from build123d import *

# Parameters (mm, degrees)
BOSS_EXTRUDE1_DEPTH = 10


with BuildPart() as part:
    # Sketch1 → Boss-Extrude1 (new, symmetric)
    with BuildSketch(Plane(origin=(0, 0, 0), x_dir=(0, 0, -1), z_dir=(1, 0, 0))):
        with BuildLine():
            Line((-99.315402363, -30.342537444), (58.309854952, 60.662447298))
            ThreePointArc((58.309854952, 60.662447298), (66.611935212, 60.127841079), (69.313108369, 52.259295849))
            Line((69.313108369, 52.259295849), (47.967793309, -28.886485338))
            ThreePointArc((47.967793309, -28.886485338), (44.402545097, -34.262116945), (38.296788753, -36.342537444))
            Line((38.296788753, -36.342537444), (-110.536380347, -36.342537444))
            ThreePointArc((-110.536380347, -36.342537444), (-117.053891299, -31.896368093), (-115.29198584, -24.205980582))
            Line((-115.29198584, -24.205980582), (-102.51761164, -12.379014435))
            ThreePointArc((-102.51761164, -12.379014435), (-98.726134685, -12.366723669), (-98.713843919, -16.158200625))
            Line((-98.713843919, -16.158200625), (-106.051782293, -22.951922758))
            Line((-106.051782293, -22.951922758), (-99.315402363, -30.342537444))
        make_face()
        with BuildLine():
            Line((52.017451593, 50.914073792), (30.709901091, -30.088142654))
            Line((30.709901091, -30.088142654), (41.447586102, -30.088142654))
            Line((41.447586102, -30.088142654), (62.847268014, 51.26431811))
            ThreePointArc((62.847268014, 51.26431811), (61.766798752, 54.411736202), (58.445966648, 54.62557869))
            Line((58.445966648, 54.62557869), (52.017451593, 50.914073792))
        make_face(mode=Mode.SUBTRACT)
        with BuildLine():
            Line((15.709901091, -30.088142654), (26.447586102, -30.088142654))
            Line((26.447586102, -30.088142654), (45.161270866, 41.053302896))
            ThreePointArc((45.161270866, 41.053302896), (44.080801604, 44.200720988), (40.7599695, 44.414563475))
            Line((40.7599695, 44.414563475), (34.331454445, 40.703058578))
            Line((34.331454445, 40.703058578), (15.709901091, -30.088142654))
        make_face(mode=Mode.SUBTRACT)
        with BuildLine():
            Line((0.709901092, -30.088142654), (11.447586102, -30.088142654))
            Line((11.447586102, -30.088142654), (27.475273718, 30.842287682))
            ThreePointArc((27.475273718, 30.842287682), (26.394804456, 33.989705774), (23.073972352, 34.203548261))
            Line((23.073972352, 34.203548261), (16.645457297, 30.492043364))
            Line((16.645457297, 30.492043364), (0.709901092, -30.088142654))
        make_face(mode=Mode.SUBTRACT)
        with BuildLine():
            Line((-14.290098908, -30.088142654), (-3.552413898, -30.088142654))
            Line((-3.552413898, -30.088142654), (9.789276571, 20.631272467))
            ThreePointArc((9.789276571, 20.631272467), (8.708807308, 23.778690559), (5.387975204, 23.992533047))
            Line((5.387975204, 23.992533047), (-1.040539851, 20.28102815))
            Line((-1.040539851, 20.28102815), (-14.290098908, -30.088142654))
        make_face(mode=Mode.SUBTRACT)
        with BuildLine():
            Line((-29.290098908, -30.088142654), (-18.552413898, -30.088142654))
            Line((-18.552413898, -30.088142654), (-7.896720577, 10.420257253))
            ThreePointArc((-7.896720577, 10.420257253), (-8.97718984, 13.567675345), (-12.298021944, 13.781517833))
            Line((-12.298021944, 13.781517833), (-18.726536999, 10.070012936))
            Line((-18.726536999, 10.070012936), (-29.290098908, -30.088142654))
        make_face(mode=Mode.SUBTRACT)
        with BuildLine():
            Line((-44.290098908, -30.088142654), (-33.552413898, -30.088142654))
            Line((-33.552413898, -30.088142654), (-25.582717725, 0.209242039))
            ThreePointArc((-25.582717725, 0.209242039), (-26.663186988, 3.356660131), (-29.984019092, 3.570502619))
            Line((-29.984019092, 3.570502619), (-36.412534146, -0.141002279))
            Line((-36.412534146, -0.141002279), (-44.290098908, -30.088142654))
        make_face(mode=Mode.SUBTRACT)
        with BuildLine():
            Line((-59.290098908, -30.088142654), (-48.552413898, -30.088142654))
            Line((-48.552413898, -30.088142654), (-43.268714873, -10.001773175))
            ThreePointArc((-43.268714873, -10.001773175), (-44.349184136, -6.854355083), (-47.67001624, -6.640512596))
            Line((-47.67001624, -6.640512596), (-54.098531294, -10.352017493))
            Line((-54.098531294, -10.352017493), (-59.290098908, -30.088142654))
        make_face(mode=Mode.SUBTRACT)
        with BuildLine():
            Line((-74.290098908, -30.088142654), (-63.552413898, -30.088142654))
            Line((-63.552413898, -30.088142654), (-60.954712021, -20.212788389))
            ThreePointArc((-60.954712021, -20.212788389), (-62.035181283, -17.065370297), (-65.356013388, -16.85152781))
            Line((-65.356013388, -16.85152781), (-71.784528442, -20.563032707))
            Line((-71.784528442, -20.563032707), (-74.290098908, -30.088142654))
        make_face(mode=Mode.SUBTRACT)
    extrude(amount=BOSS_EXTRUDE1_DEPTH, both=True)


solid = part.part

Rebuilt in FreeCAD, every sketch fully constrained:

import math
import FreeCAD as App
import Part
import Sketcher

doc = App.newDocument("Part")
body = doc.addObject("PartDesign::Body", "Body")

# Sketch on YZ plane
sketch1 = body.newObject("Sketcher::SketchObject", "Sketch")
sketch1.AttachmentSupport = (doc.getObject("YZ_Plane"), [""])
sketch1.MapMode = "FlatFace"
sketch1.addGeometry(Part.LineSegment(App.Vector(60.662447, -58.309855, 0), App.Vector(-30.342537, 99.315402, 0)), False)
sketch1.addGeometry(Part.LineSegment(App.Vector(-30.342537, 99.315402, 0), App.Vector(-22.951923, 106.051782, 0)), False)
sketch1.addGeometry(Part.LineSegment(App.Vector(-22.951923, 106.051782, 0), App.Vector(-16.158201, 98.713844, 0)), False)
sketch1.addGeometry(Part.ArcOfCircle(Part.Circle(App.Vector(-14.268608, 100.615728, 0), App.Vector(0, 0, 1), 2.680993), math.radians(-134.814266), math.radians(45.185734)), False)
sketch1.addGeometry(Part.LineSegment(App.Vector(-12.379014, 102.517612, 0), App.Vector(-24.205981, 115.291986, 0)), False)
sketch1.addGeometry(Part.ArcOfCircle(Part.Circle(App.Vector(-29.342537, 110.53638, 0), App.Vector(0, 0, 1), 7), math.radians(42.794605), math.radians(180)), False)
sketch1.addGeometry(Part.LineSegment(App.Vector(-36.342537, 110.53638, 0), App.Vector(-36.342537, -38.296789, 0)), False)
sketch1.addGeometry(Part.ArcOfCircle(Part.Circle(App.Vector(-26.342537, -38.296789, 0), App.Vector(0, 0, 1), 10), math.radians(180), math.radians(255.262273)), False)
sketch1.addGeometry(Part.LineSegment(App.Vector(-28.886485, -47.967793, 0), App.Vector(52.259296, -69.313108, 0)), False)
sketch1.addGeometry(Part.ArcOfCircle(Part.Circle(App.Vector(54.167257, -62.059855, 0), App.Vector(0, 0, 1), 7.5), math.radians(-104.737727), math.radians(30)), False)
sketch1.addGeometry(Part.LineSegment(App.Vector(-30.088143, -15.709901, 0), App.Vector(40.703059, -34.331454, 0)), False)
sketch1.addGeometry(Part.LineSegment(App.Vector(40.703059, -34.331454, 0), App.Vector(44.414563, -40.759969, 0)), False)
sketch1.addGeometry(Part.ArcOfCircle(Part.Circle(App.Vector(41.816487, -42.25997, 0), App.Vector(0, 0, 1), 3), math.radians(-104.737727), math.radians(30)), False)
sketch1.addGeometry(Part.LineSegment(App.Vector(41.053303, -45.161271, 0), App.Vector(-30.088143, -26.447586, 0)), False)
sketch1.addGeometry(Part.LineSegment(App.Vector(-30.088143, -26.447586, 0), App.Vector(-30.088143, -15.709901, 0)), False)
sketch1.addGeometry(Part.LineSegment(App.Vector(-30.088143, 14.290099, 0), App.Vector(20.281028, 1.04054, 0)), False)
sketch1.addGeometry(Part.LineSegment(App.Vector(20.281028, 1.04054, 0), App.Vector(23.992533, -5.387975, 0)), False)
sketch1.addGeometry(Part.ArcOfCircle(Part.Circle(App.Vector(21.394457, -6.887975, 0), App.Vector(0, 0, 1), 3), math.radians(-104.737727), math.radians(30)), False)
sketch1.addGeometry(Part.LineSegment(App.Vector(20.631272, -9.789277, 0), App.Vector(-30.088143, 3.552414, 0)), False)
sketch1.addGeometry(Part.LineSegment(App.Vector(-30.088143, 3.552414, 0), App.Vector(-30.088143, 14.290099, 0)), False)
sketch1.addGeometry(Part.LineSegment(App.Vector(-30.088143, -0.709901, 0), App.Vector(30.492043, -16.645457, 0)), False)
sketch1.addGeometry(Part.LineSegment(App.Vector(30.492043, -16.645457, 0), App.Vector(34.203548, -23.073972, 0)), False)
sketch1.addGeometry(Part.ArcOfCircle(Part.Circle(App.Vector(31.605472, -24.573972, 0), App.Vector(0, 0, 1), 3), math.radians(-104.737727), math.radians(30)), False)
sketch1.addGeometry(Part.LineSegment(App.Vector(30.842288, -27.475274, 0), App.Vector(-30.088143, -11.447586, 0)), False)
sketch1.addGeometry(Part.LineSegment(App.Vector(-30.088143, -11.447586, 0), App.Vector(-30.088143, -0.709901, 0)), False)
sketch1.addGeometry(Part.LineSegment(App.Vector(-30.088143, 44.290099, 0), App.Vector(-0.141002, 36.412534, 0)), False)
sketch1.addGeometry(Part.LineSegment(App.Vector(-0.141002, 36.412534, 0), App.Vector(3.570503, 29.984019, 0)), False)
sketch1.addGeometry(Part.ArcOfCircle(Part.Circle(App.Vector(0.972426, 28.484019, 0), App.Vector(0, 0, 1), 3), math.radians(-104.737727), math.radians(30)), False)
sketch1.addGeometry(Part.LineSegment(App.Vector(0.209242, 25.582718, 0), App.Vector(-30.088143, 33.552414, 0)), False)
sketch1.addGeometry(Part.LineSegment(App.Vector(-30.088143, 33.552414, 0), App.Vector(-30.088143, 44.290099, 0)), False)
sketch1.addGeometry(Part.LineSegment(App.Vector(-30.088143, 74.290099, 0), App.Vector(-20.563033, 71.784528, 0)), False)
sketch1.addGeometry(Part.LineSegment(App.Vector(-20.563033, 71.784528, 0), App.Vector(-16.851528, 65.356013, 0)), False)
sketch1.addGeometry(Part.ArcOfCircle(Part.Circle(App.Vector(-19.449604, 63.856013, 0), App.Vector(0, 0, 1), 3), math.radians(-104.737727), math.radians(30)), False)
sketch1.addGeometry(Part.LineSegment(App.Vector(-20.212788, 60.954712, 0), App.Vector(-30.088143, 63.552414, 0)), False)
sketch1.addGeometry(Part.LineSegment(App.Vector(-30.088143, 63.552414, 0), App.Vector(-30.088143, 74.290099, 0)), False)
sketch1.addGeometry(Part.LineSegment(App.Vector(-30.088143, 59.290099, 0), App.Vector(-10.352017, 54.098531, 0)), False)
sketch1.addGeometry(Part.LineSegment(App.Vector(-10.352017, 54.098531, 0), App.Vector(-6.640513, 47.670016, 0)), False)
sketch1.addGeometry(Part.ArcOfCircle(Part.Circle(App.Vector(-9.238589, 46.170016, 0), App.Vector(0, 0, 1), 3), math.radians(-104.737727), math.radians(30)), False)
sketch1.addGeometry(Part.LineSegment(App.Vector(-10.001773, 43.268715, 0), App.Vector(-30.088143, 48.552414, 0)), False)
sketch1.addGeometry(Part.LineSegment(App.Vector(-30.088143, 48.552414, 0), App.Vector(-30.088143, 59.290099, 0)), False)
sketch1.addGeometry(Part.LineSegment(App.Vector(-30.088143, 29.290099, 0), App.Vector(10.070013, 18.726537, 0)), False)
sketch1.addGeometry(Part.LineSegment(App.Vector(10.070013, 18.726537, 0), App.Vector(13.781518, 12.298022, 0)), False)
sketch1.addGeometry(Part.ArcOfCircle(Part.Circle(App.Vector(11.183442, 10.798022, 0), App.Vector(0, 0, 1), 3), math.radians(-104.737727), math.radians(30)), False)
sketch1.addGeometry(Part.LineSegment(App.Vector(10.420257, 7.896721, 0), App.Vector(-30.088143, 18.552414, 0)), False)
sketch1.addGeometry(Part.LineSegment(App.Vector(-30.088143, 18.552414, 0), App.Vector(-30.088143, 29.290099, 0)), False)
sketch1.addGeometry(Part.LineSegment(App.Vector(50.914074, -52.017452, 0), App.Vector(54.625579, -58.445967, 0)), False)
sketch1.addGeometry(Part.ArcOfCircle(Part.Circle(App.Vector(52.027502, -59.945967, 0), App.Vector(0, 0, 1), 3), math.radians(-104.737727), math.radians(30)), False)
sketch1.addGeometry(Part.LineSegment(App.Vector(51.264318, -62.847268, 0), App.Vector(-30.088143, -41.447586, 0)), False)
sketch1.addGeometry(Part.LineSegment(App.Vector(-30.088143, -41.447586, 0), App.Vector(-30.088143, -30.709901, 0)), False)
sketch1.addGeometry(Part.LineSegment(App.Vector(-30.088143, -30.709901, 0), App.Vector(50.914074, -52.017452, 0)), False)
sketch1.addConstraint(Sketcher.Constraint("Coincident", 0, 2, 1, 1))
sketch1.addConstraint(Sketcher.Constraint("Coincident", 1, 2, 2, 1))
sketch1.addConstraint(Sketcher.Constraint("Coincident", 2, 2, 3, 1))
sketch1.addConstraint(Sketcher.Constraint("Coincident", 3, 2, 4, 1))
sketch1.addConstraint(Sketcher.Constraint("Coincident", 4, 2, 5, 1))
sketch1.addConstraint(Sketcher.Constraint("Coincident", 5, 2, 6, 1))
sketch1.addConstraint(Sketcher.Constraint("Coincident", 6, 2, 7, 1))
sketch1.addConstraint(Sketcher.Constraint("Coincident", 7, 2, 8, 1))
sketch1.addConstraint(Sketcher.Constraint("Coincident", 8, 2, 9, 1))
sketch1.addConstraint(Sketcher.Constraint("Coincident", 9, 2, 0, 1))
sketch1.addConstraint(Sketcher.Constraint("Coincident", 10, 2, 11, 1))
sketch1.addConstraint(Sketcher.Constraint("Coincident", 11, 2, 12, 2))
sketch1.addConstraint(Sketcher.Constraint("Coincident", 12, 1, 13, 1))
sketch1.addConstraint(Sketcher.Constraint("Coincident", 13, 2, 14, 1))
sketch1.addConstraint(Sketcher.Constraint("Coincident", 14, 2, 10, 1))
sketch1.addConstraint(Sketcher.Constraint("Coincident", 15, 2, 16, 1))
sketch1.addConstraint(Sketcher.Constraint("Coincident", 16, 2, 17, 2))
sketch1.addConstraint(Sketcher.Constraint("Coincident", 17, 1, 18, 1))
sketch1.addConstraint(Sketcher.Constraint("Coincident", 18, 2, 19, 1))
sketch1.addConstraint(Sketcher.Constraint("Coincident", 19, 2, 15, 1))
sketch1.addConstraint(Sketcher.Constraint("Coincident", 20, 2, 21, 1))
sketch1.addConstraint(Sketcher.Constraint("Coincident", 21, 2, 22, 2))
sketch1.addConstraint(Sketcher.Constraint("Coincident", 22, 1, 23, 1))
sketch1.addConstraint(Sketcher.Constraint("Coincident", 23, 2, 24, 1))
sketch1.addConstraint(Sketcher.Constraint("Coincident", 24, 2, 20, 1))
sketch1.addConstraint(Sketcher.Constraint("Coincident", 25, 2, 26, 1))
sketch1.addConstraint(Sketcher.Constraint("Coincident", 26, 2, 27, 2))
sketch1.addConstraint(Sketcher.Constraint("Coincident", 27, 1, 28, 1))
sketch1.addConstraint(Sketcher.Constraint("Coincident", 28, 2, 29, 1))
sketch1.addConstraint(Sketcher.Constraint("Coincident", 29, 2, 25, 1))
sketch1.addConstraint(Sketcher.Constraint("Coincident", 30, 2, 31, 1))
sketch1.addConstraint(Sketcher.Constraint("Coincident", 31, 2, 32, 2))
sketch1.addConstraint(Sketcher.Constraint("Coincident", 32, 1, 33, 1))
sketch1.addConstraint(Sketcher.Constraint("Coincident", 33, 2, 34, 1))
sketch1.addConstraint(Sketcher.Constraint("Coincident", 34, 2, 30, 1))
sketch1.addConstraint(Sketcher.Constraint("Coincident", 35, 2, 36, 1))
sketch1.addConstraint(Sketcher.Constraint("Coincident", 36, 2, 37, 2))
sketch1.addConstraint(Sketcher.Constraint("Coincident", 37, 1, 38, 1))
sketch1.addConstraint(Sketcher.Constraint("Coincident", 38, 2, 39, 1))
sketch1.addConstraint(Sketcher.Constraint("Coincident", 39, 2, 35, 1))
sketch1.addConstraint(Sketcher.Constraint("Coincident", 40, 2, 41, 1))
sketch1.addConstraint(Sketcher.Constraint("Coincident", 41, 2, 42, 2))
sketch1.addConstraint(Sketcher.Constraint("Coincident", 42, 1, 43, 1))
sketch1.addConstraint(Sketcher.Constraint("Coincident", 43, 2, 44, 1))
sketch1.addConstraint(Sketcher.Constraint("Coincident", 44, 2, 40, 1))
sketch1.addConstraint(Sketcher.Constraint("Coincident", 45, 2, 46, 2))
sketch1.addConstraint(Sketcher.Constraint("Coincident", 46, 1, 47, 1))
sketch1.addConstraint(Sketcher.Constraint("Coincident", 47, 2, 48, 1))
sketch1.addConstraint(Sketcher.Constraint("Coincident", 48, 2, 49, 1))
sketch1.addConstraint(Sketcher.Constraint("Coincident", 49, 2, 45, 1))
sketch1.addConstraint(Sketcher.Constraint("Vertical", 6))
sketch1.addConstraint(Sketcher.Constraint("Vertical", 14))
sketch1.addConstraint(Sketcher.Constraint("Vertical", 19))
sketch1.addConstraint(Sketcher.Constraint("Vertical", 24))
sketch1.addConstraint(Sketcher.Constraint("Vertical", 29))
sketch1.addConstraint(Sketcher.Constraint("Vertical", 34))
sketch1.addConstraint(Sketcher.Constraint("Vertical", 39))
sketch1.addConstraint(Sketcher.Constraint("Vertical", 44))
sketch1.addConstraint(Sketcher.Constraint("Vertical", 48))
sketch1.addConstraint(Sketcher.Constraint("Radius", 5, 7.0))
sketch1.addConstraint(Sketcher.Constraint("Radius", 7, 10.0))
sketch1.addConstraint(Sketcher.Constraint("Radius", 12, 3.0))
sketch1.addConstraint(Sketcher.Constraint("Radius", 17, 3.0))
sketch1.addConstraint(Sketcher.Constraint("Radius", 22, 3.0))
sketch1.addConstraint(Sketcher.Constraint("Radius", 27, 3.0))
sketch1.addConstraint(Sketcher.Constraint("Radius", 32, 3.0))
sketch1.addConstraint(Sketcher.Constraint("Radius", 37, 3.0))
sketch1.addConstraint(Sketcher.Constraint("Radius", 42, 3.0))
sketch1.addConstraint(Sketcher.Constraint("Radius", 46, 3.0))
sketch1.addConstraint(Sketcher.Constraint("Radius", 9, 7.5))
sketch1.addConstraint(Sketcher.Constraint("Distance", 1, 10.0))
sketch1.addConstraint(Sketcher.Constraint("Distance", 2, 10.0))
sketch1.addConstraint(Sketcher.Constraint("Radius", 3, 2.680993))
sketch1.addConstraint(Sketcher.Constraint("Distance", 33, 10.211301))
sketch1.addConstraint(Sketcher.Constraint("DistanceY", 6, 2, 6, 1, 148.833169))
sketch1.addConstraint(Sketcher.Constraint("DistanceX", 2, 2, -1, 1, 16.158201))
sketch1.addConstraint(Sketcher.Constraint("DistanceY", 14, 2, -1, 1, 15.709901))
sketch1.addConstraint(Sketcher.Constraint("DistanceY", -1, 1, 19, 2, 14.290099))
sketch1.addConstraint(Sketcher.Constraint("DistanceY", 24, 2, -1, 1, 0.709901))
sketch1.addConstraint(Sketcher.Constraint("DistanceY", -1, 1, 29, 2, 44.290099))
sketch1.addConstraint(Sketcher.Constraint("DistanceY", -1, 1, 34, 2, 74.290099))
sketch1.addConstraint(Sketcher.Constraint("DistanceY", -1, 1, 39, 2, 59.290099))
sketch1.addConstraint(Sketcher.Constraint("DistanceY", -1, 1, 44, 2, 29.290099))
sketch1.addConstraint(Sketcher.Constraint("DistanceY", 48, 2, -1, 1, 30.709901))
sketch1.addConstraint(Sketcher.Constraint("Distance", 0, 182.009969))
sketch1.addConstraint(Sketcher.Constraint("Distance", 4, 17.408669))
sketch1.addConstraint(Sketcher.Constraint("Distance", 8, 83.906259))
sketch1.addConstraint(Sketcher.Constraint("Distance", 10, 73.199429))
sketch1.addConstraint(Sketcher.Constraint("Distance", 11, 7.42301))
sketch1.addConstraint(Sketcher.Constraint("Distance", 13, 73.561588))
sketch1.addConstraint(Sketcher.Constraint("Distance", 16, 7.42301))
sketch1.addConstraint(Sketcher.Constraint("Distance", 21, 7.42301))
sketch1.addConstraint(Sketcher.Constraint("Distance", 26, 7.42301))
sketch1.addConstraint(Sketcher.Constraint("Distance", 31, 7.42301))
sketch1.addConstraint(Sketcher.Constraint("Distance", 36, 7.42301))
sketch1.addConstraint(Sketcher.Constraint("Distance", 41, 7.42301))
sketch1.addConstraint(Sketcher.Constraint("Distance", 45, 7.42301))
sketch1.addConstraint(Sketcher.Constraint("Distance", 47, 84.119969))
sketch1.addConstraint(Sketcher.Constraint("Distance", 49, 83.75781))
sketch1.addConstraint(Sketcher.Constraint("DistanceY", 14, 1, 14, 2, 10.737685))
sketch1.addConstraint(Sketcher.Constraint("DistanceY", 19, 1, 19, 2, 10.737685))
sketch1.addConstraint(Sketcher.Constraint("DistanceY", 24, 1, 24, 2, 10.737685))
sketch1.addConstraint(Sketcher.Constraint("DistanceY", 29, 1, 29, 2, 10.737685))
sketch1.addConstraint(Sketcher.Constraint("DistanceY", 34, 1, 34, 2, 10.737685))
sketch1.addConstraint(Sketcher.Constraint("DistanceY", 39, 1, 39, 2, 10.737685))
sketch1.addConstraint(Sketcher.Constraint("DistanceY", 44, 1, 44, 2, 10.737685))
sketch1.addConstraint(Sketcher.Constraint("DistanceY", 48, 1, 48, 2, 10.737685))
sketch1.addConstraint(Sketcher.Constraint("DistanceY", -1, 1, 5, 3, 110.53638))
sketch1.addConstraint(Sketcher.Constraint("DistanceY", 7, 3, -1, 1, 38.296789))
sketch1.addConstraint(Sketcher.Constraint("DistanceY", 12, 3, -1, 1, 42.25997))
sketch1.addConstraint(Sketcher.Constraint("DistanceY", -1, 1, 27, 3, 28.484019))
sketch1.addConstraint(Sketcher.Constraint("DistanceX", 37, 3, -1, 1, 9.238589))
sketch1.addConstraint(Sketcher.Constraint("DistanceX", -1, 1, 42, 3, 11.183442))
sketch1.addConstraint(Sketcher.Constraint("DistanceY", -1, 1, 42, 3, 10.798022))
sketch1.addConstraint(Sketcher.Constraint("DistanceY", -1, 1, 3, 2, 102.517612))
sketch1.addConstraint(Sketcher.Constraint("DistanceX", 4, 2, -1, 1, 24.205981))
sketch1.addConstraint(Sketcher.Constraint("DistanceY", -1, 1, 5, 2, 110.53638))
sketch1.addConstraint(Sketcher.Constraint("DistanceY", 8, 2, -1, 1, 69.313108))
sketch1.addConstraint(Sketcher.Constraint("DistanceX", -1, 1, 10, 2, 40.703059))
sketch1.addConstraint(Sketcher.Constraint("DistanceY", 11, 2, -1, 1, 40.759969))
sketch1.addConstraint(Sketcher.Constraint("DistanceY", 12, 1, -1, 1, 45.161271))
sketch1.addConstraint(Sketcher.Constraint("DistanceX", -1, 1, 15, 2, 20.281028))
sketch1.addConstraint(Sketcher.Constraint("DistanceY", -1, 1, 15, 2, 1.04054))
sketch1.addConstraint(Sketcher.Constraint("DistanceX", -1, 1, 21, 2, 34.203548))
sketch1.addConstraint(Sketcher.Constraint("DistanceY", -1, 1, 26, 2, 29.984019))
sketch1.addConstraint(Sketcher.Constraint("DistanceY", -1, 1, 30, 2, 71.784528))
sketch1.addConstraint(Sketcher.Constraint("DistanceX", 32, 1, -1, 1, 20.212788))
sketch1.addConstraint(Sketcher.Constraint("DistanceY", -1, 1, 35, 2, 54.098531))
sketch1.addConstraint(Sketcher.Constraint("DistanceY", -1, 1, 41, 2, 12.298022))
sketch1.addConstraint(Sketcher.Constraint("DistanceY", -1, 1, 42, 1, 7.896721))
sketch1.addConstraint(Sketcher.Constraint("DistanceX", -1, 1, 45, 2, 54.625579))
sketch1.addConstraint(Sketcher.Constraint("DistanceX", -1, 1, 46, 1, 51.264318))
sketch1.addConstraint(Sketcher.Constraint("DistanceY", 46, 1, -1, 1, 62.847268))
sketch1.addConstraint(Sketcher.Constraint("DistanceY", 49, 2, -1, 1, 52.017452))
sketch1.addConstraint(Sketcher.Constraint("Distance", 15, 52.082667))
sketch1.addConstraint(Sketcher.Constraint("Distance", 18, 52.444826))
sketch1.addConstraint(Sketcher.Constraint("Distance", 20, 62.641048))
sketch1.addConstraint(Sketcher.Constraint("Distance", 23, 63.003207))
sketch1.addConstraint(Sketcher.Constraint("Distance", 25, 30.965905))
sketch1.addConstraint(Sketcher.Constraint("Distance", 28, 31.328064))
sketch1.addConstraint(Sketcher.Constraint("Distance", 30, 9.849142))
sketch1.addConstraint(Sketcher.Constraint("Distance", 35, 20.407523))
sketch1.addConstraint(Sketcher.Constraint("Distance", 38, 20.769683))
sketch1.addConstraint(Sketcher.Constraint("Distance", 40, 41.524286))
sketch1.addConstraint(Sketcher.Constraint("Distance", 43, 41.886445))
sketch1.addConstraint(Sketcher.Constraint("DistanceX", 3, 3, -1, 1, 14.268608))
sketch1.addConstraint(Sketcher.Constraint("DistanceY", -1, 1, 3, 3, 100.615728))
sketch1.addConstraint(Sketcher.Constraint("DistanceX", -1, 1, 9, 3, 54.167257))
sketch1.addConstraint(Sketcher.Constraint("DistanceY", 9, 3, -1, 1, 62.059855))
sketch1.addConstraint(Sketcher.Constraint("DistanceX", -1, 1, 17, 3, 21.394457))
sketch1.addConstraint(Sketcher.Constraint("DistanceY", 17, 3, -1, 1, 6.887975))
sketch1.addConstraint(Sketcher.Constraint("DistanceX", -1, 1, 22, 3, 31.605472))
sketch1.addConstraint(Sketcher.Constraint("DistanceY", 22, 3, -1, 1, 24.573972))
sketch1.addConstraint(Sketcher.Constraint("DistanceX", -1, 1, 27, 3, 0.972426))
sketch1.addConstraint(Sketcher.Constraint("DistanceX", 32, 3, -1, 1, 19.449604))
sketch1.addConstraint(Sketcher.Constraint("DistanceY", -1, 1, 32, 3, 63.856013))
sketch1.addConstraint(Sketcher.Constraint("DistanceY", -1, 1, 37, 3, 46.170016))
sketch1.addConstraint(Sketcher.Constraint("DistanceX", 0, 2, -1, 1, 30.342537))
sketch1.addConstraint(Sketcher.Constraint("DistanceY", -1, 1, 0, 2, 99.315402))
sketch1.addConstraint(Sketcher.Constraint("DistanceX", -1, 1, 20, 2, 30.492043))
sketch1.addConstraint(Sketcher.Constraint("DistanceX", 25, 2, -1, 1, 0.141002))
sketch1.addConstraint(Sketcher.Constraint("DistanceX", 35, 2, -1, 1, 10.352017))
pad1 = body.newObject("PartDesign::Pad", "Pad")
pad1.Profile = sketch1
pad1.Length = 20
pad1.Midplane = True

doc.recompute()
